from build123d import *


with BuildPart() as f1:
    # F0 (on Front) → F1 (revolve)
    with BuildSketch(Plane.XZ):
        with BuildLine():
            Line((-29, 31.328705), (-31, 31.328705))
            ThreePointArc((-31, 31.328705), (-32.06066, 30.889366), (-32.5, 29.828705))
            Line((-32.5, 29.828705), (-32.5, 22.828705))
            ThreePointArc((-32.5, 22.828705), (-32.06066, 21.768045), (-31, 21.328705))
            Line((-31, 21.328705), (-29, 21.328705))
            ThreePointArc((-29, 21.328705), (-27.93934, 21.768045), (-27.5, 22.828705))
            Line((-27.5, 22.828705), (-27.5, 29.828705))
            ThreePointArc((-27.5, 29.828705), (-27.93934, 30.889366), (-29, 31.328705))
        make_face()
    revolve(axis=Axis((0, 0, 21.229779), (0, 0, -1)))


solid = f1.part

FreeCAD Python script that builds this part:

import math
import FreeCAD as App
import Part
import Sketcher
from FreeCAD import Vector

doc = App.newDocument("Part")
body = doc.addObject("PartDesign::Body", "Body")

# Sketch on XZ plane
sketch1 = body.newObject("Sketcher::SketchObject", "Sketch")
sketch1.AttachmentSupport = (doc.getObject("XZ_Plane"), [""])
sketch1.MapMode = "FlatFace"
sketch1.addGeometry(Part.LineSegment(Vector(-29, 31.3, 0), Vector(-31, 31.3, 0)), False)
sketch1.addGeometry(Part.ArcOfCircle(Part.Circle(Vector(-31, 29.8, 0), Vector(0, 0, 1), 1.5), math.radians(90), math.radians(180)), False)
sketch1.addGeometry(Part.LineSegment(Vector(-32.5, 29.8, 0), Vector(-32.5, 22.8, 0)), False)
sketch1.addGeometry(Part.ArcOfCircle(Part.Circle(Vector(-31, 22.8, 0), Vector(0, 0, 1), 1.5), math.radians(-180), math.radians(-90)), False)
sketch1.addGeometry(Part.LineSegment(Vector(-31, 21.3, 0), Vector(-29, 21.3, 0)), False)
sketch1.addGeometry(Part.ArcOfCircle(Part.Circle(Vector(-29, 22.8, 0), Vector(0, 0, 1), 1.5), math.radians(-90), math.radians(0)), False)
sketch1.addGeometry(Part.LineSegment(Vector(-27.5, 22.8, 0), Vector(-27.5, 29.8, 0)), False)
sketch1.addGeometry(Part.ArcOfCircle(Part.Circle(Vector(-29, 29.8, 0), Vector(0, 0, 1), 1.5), math.radians(0), math.radians(90)), False)
sketch1.addConstraint(Sketcher.Constraint("Tangent", 0, 2, 1, 1))
sketch1.addConstraint(Sketcher.Constraint("Tangent", 1, 2, 2, 1))
sketch1.addConstraint(Sketcher.Constraint("Tangent", 2, 2, 3, 1))
sketch1.addConstraint(Sketcher.Constraint("Tangent", 3, 2, 4, 1))
sketch1.addConstraint(Sketcher.Constraint("Tangent", 4, 2, 5, 1))
sketch1.addConstraint(Sketcher.Constraint("Tangent", 5, 2, 6, 1))
sketch1.addConstraint(Sketcher.Constraint("Tangent", 6, 2, 7, 1))
sketch1.addConstraint(Sketcher.Constraint("Tangent", 7, 2, 0, 1))
sketch1.addConstraint(Sketcher.Constraint("Horizontal", 0))
sketch1.addConstraint(Sketcher.Constraint("Vertical", 2))
sketch1.addConstraint(Sketcher.Constraint("Horizontal", 4))
sketch1.addConstraint(Sketcher.Constraint("Vertical", 6))
sketch1.addConstraint(Sketcher.Constraint("Equal", 1, 3))
sketch1.addConstraint(Sketcher.Constraint("Equal", 3, 5))
sketch1.addConstraint(Sketcher.Constraint("Equal", 5, 7))
sketch1.addConstraint(Sketcher.Constraint("Radius", 1, 1.499999))
sketch1.addConstraint(Sketcher.Constraint("DistanceX", 0, 2, 0, 1, 2.0))
sketch1.addConstraint(Sketcher.Constraint("DistanceY", 2, 2, 2, 1, 7.0))
sketch1.addConstraint(Sketcher.Constraint("DistanceX", 1, 3, -1, 1, 31.000001))
sketch1.addConstraint(Sketcher.Constraint("DistanceY", -1, 1, 1, 3, 29.828706))
revolution = body.newObject("PartDesign::Revolution", "Revolution")
revolution.Profile = sketch1
revolution.ReferenceAxis = (sketch1, ["V_Axis"])
revolution.Angle = 360

doc.recompute()
